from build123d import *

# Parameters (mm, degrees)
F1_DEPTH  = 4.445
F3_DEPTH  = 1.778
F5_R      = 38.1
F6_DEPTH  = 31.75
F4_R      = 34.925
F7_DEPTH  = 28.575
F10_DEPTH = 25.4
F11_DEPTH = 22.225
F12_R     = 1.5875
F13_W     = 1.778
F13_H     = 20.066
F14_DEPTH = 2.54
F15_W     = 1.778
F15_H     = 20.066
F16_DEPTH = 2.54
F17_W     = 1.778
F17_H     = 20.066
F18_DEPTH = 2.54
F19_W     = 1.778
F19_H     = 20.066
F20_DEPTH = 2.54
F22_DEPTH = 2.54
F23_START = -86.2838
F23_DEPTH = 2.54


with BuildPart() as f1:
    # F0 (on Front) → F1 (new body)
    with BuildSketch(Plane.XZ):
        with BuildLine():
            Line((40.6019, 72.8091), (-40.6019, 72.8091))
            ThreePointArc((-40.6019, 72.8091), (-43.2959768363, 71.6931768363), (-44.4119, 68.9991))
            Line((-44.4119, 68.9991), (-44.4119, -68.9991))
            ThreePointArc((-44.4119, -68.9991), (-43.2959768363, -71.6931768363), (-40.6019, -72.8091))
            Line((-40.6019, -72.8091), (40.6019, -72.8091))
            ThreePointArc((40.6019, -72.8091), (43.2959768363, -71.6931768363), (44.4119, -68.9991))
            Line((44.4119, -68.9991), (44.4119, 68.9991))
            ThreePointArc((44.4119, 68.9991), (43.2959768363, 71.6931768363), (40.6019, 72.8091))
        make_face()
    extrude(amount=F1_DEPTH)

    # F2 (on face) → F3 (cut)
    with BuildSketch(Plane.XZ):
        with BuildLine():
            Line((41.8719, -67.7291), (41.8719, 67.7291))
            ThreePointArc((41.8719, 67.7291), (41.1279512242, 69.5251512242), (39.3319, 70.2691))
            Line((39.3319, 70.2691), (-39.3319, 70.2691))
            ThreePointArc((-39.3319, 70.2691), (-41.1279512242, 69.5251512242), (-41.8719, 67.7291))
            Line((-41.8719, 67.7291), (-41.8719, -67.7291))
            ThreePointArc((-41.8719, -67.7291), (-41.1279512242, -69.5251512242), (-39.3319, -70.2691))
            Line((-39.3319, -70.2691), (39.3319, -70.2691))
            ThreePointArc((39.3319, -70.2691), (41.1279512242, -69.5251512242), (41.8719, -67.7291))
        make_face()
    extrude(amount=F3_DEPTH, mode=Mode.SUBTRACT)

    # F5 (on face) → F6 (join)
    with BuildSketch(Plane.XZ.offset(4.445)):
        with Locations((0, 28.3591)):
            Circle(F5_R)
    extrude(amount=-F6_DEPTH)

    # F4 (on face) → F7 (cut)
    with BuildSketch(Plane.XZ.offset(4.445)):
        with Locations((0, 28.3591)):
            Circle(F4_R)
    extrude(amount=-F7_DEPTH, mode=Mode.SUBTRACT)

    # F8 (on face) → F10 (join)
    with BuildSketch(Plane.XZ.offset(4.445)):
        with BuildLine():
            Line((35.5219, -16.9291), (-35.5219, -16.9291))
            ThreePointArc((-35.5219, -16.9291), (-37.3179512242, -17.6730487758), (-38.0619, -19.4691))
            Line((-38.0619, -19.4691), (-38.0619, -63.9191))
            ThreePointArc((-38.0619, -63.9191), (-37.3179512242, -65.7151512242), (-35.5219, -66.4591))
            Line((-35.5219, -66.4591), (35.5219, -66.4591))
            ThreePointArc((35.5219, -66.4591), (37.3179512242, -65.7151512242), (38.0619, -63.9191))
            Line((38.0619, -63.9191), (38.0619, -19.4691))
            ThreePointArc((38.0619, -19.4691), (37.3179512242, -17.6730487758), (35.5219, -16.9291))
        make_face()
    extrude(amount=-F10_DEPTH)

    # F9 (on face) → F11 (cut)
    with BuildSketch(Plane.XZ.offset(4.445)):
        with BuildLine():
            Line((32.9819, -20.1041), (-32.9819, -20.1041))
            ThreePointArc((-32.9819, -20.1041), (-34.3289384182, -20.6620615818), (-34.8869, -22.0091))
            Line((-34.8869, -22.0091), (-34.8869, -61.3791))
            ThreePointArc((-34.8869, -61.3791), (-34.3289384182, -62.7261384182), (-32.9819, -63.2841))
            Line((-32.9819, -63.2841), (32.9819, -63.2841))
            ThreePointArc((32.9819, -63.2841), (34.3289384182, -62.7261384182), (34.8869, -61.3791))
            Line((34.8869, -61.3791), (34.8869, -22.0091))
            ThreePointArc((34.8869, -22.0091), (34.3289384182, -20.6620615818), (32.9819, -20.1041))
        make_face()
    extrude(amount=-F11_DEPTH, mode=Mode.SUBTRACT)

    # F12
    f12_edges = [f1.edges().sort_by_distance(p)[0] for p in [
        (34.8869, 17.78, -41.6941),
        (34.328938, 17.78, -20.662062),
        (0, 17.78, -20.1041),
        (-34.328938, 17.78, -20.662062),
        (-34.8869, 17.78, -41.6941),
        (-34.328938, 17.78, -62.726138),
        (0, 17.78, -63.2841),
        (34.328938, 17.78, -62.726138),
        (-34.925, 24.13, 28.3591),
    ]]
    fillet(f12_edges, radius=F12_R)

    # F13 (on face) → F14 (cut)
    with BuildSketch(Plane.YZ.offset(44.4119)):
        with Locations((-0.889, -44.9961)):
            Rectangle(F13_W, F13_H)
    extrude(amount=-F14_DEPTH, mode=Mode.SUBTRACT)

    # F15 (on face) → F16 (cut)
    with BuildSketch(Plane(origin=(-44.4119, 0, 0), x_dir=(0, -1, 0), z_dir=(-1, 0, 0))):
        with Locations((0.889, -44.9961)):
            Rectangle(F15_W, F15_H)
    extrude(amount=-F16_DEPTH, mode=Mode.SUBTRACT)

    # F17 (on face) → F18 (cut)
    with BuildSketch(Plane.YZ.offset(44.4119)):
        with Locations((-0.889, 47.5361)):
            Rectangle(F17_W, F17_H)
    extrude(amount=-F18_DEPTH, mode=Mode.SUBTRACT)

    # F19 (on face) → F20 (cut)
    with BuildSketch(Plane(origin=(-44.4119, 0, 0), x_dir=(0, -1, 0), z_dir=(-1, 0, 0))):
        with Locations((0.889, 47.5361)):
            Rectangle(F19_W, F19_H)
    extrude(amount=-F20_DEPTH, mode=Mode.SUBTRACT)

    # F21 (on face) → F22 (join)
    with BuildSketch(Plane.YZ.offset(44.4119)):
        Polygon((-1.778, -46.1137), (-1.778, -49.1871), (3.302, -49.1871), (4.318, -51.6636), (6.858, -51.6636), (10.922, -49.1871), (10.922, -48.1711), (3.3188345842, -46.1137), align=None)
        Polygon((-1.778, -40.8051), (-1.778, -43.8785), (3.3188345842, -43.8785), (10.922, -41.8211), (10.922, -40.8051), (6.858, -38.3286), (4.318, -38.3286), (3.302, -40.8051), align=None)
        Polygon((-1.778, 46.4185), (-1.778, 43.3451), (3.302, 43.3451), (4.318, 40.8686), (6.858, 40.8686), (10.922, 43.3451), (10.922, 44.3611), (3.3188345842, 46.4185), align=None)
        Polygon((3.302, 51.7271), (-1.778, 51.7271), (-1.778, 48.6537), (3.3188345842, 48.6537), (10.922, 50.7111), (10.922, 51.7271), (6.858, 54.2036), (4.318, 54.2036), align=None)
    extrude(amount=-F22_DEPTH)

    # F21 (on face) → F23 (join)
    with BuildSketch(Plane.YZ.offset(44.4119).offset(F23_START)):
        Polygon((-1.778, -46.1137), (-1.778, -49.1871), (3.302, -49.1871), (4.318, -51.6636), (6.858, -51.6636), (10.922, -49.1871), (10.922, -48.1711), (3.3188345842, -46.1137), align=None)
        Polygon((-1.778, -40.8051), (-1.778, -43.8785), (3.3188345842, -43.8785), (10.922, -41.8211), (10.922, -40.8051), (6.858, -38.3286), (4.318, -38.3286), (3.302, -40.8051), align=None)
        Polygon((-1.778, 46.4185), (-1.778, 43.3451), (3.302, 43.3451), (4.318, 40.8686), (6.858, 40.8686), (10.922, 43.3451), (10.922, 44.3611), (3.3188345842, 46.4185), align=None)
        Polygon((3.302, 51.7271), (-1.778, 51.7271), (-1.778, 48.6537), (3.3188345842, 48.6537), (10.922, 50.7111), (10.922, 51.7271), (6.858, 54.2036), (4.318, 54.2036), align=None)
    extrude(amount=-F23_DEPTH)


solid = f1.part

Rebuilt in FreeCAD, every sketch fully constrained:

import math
import FreeCAD as App
import Part
import Sketcher
Q = App.Units.Quantity


def edges_at(feature, points):
    """Names of the edges that pass closest to the given points."""
    edges = feature.Shape.Edges
    near = lambda p: min(range(len(edges)), key=lambda i: edges[i].distToShape(Part.Vertex(*p))[0])
    return sorted({f"Edge{near(p) + 1}" for p in points})

doc = App.newDocument("Part")
body = doc.addObject("PartDesign::Body", "Body")

# Sketch on XZ plane
sketch1 = body.newObject("Sketcher::SketchObject", "Sketch")
sketch1.AttachmentSupport = (doc.getObject("XZ_Plane"), [""])
sketch1.MapMode = "FlatFace"
sketch1.addGeometry(Part.LineSegment(App.Vector(40.6, 72.8, 0), App.Vector(-40.6, 72.8, 0)), False)
sketch1.addGeometry(Part.ArcOfCircle(Part.Circle(App.Vector(-40.6, 69, 0), App.Vector(0, 0, 1), 3.8), math.radians(90), math.radians(180)), False)
sketch1.addGeometry(Part.LineSegment(App.Vector(-44.4, 69, 0), App.Vector(-44.4, -69, 0)), False)
sketch1.addGeometry(Part.ArcOfCircle(Part.Circle(App.Vector(-40.6, -69, 0), App.Vector(0, 0, 1), 3.8), math.radians(180), math.radians(270)), False)
sketch1.addGeometry(Part.LineSegment(App.Vector(-40.6, -72.8, 0), App.Vector(40.6, -72.8, 0)), False)
sketch1.addGeometry(Part.ArcOfCircle(Part.Circle(App.Vector(40.6, -69, 0), App.Vector(0, 0, 1), 3.8), math.radians(-90), math.radians(0)), False)
sketch1.addGeometry(Part.LineSegment(App.Vector(44.4, -69, 0), App.Vector(44.4, 69, 0)), False)
sketch1.addGeometry(Part.ArcOfCircle(Part.Circle(App.Vector(40.6, 69, 0), App.Vector(0, 0, 1), 3.8), math.radians(0), math.radians(90)), False)
sketch1.addConstraint(Sketcher.Constraint("Tangent", 0, 2, 1, 1))
sketch1.addConstraint(Sketcher.Constraint("Tangent", 1, 2, 2, 1))
sketch1.addConstraint(Sketcher.Constraint("Tangent", 2, 2, 3, 1))
sketch1.addConstraint(Sketcher.Constraint("Tangent", 3, 2, 4, 1))
sketch1.addConstraint(Sketcher.Constraint("Tangent", 4, 2, 5, 1))
sketch1.addConstraint(Sketcher.Constraint("Tangent", 5, 2, 6, 1))
sketch1.addConstraint(Sketcher.Constraint("Tangent", 6, 2, 7, 1))
sketch1.addConstraint(Sketcher.Constraint("Tangent", 7, 2, 0, 1))
sketch1.addConstraint(Sketcher.Constraint("Horizontal", 0))
sketch1.addConstraint(Sketcher.Constraint("Vertical", 2))
sketch1.addConstraint(Sketcher.Constraint("Horizontal", 4))
sketch1.addConstraint(Sketcher.Constraint("Vertical", 6))
sketch1.addConstraint(Sketcher.Constraint("Equal", 1, 3))
sketch1.addConstraint(Sketcher.Constraint("Equal", 3, 5))
sketch1.addConstraint(Sketcher.Constraint("Equal", 5, 7))
sketch1.addConstraint(Sketcher.Constraint("Symmetric", 1, 3, 5, 3, -1, 1))
sketch1.addConstraint(Sketcher.Constraint("Radius", 1, Q("0.15 in")))
sketch1.addConstraint(Sketcher.Constraint("DistanceX", 0, 2, 0, 1, Q("3.197 in")))
sketch1.addConstraint(Sketcher.Constraint("DistanceY", 2, 2, 2, 1, Q("5.433 in")))
pad1 = body.newObject("PartDesign::Pad", "Pad")
pad1.Profile = sketch1
pad1.Length = Q("0.175 in")

# Sketch on XZ plane
sketch2 = body.newObject("Sketcher::SketchObject", "Sketch001")
sketch2.AttachmentSupport = (doc.getObject("XZ_Plane"), [""])
sketch2.MapMode = "FlatFace"
sketch2.addGeometry(Part.LineSegment(App.Vector(41.9, -67.7, 0), App.Vector(41.9, 67.7, 0)), False)
sketch2.addGeometry(Part.ArcOfCircle(Part.Circle(App.Vector(39.3, 67.7, 0), App.Vector(0, 0, 1), 2.5), math.radians(0), math.radians(90)), False)
sketch2.addGeometry(Part.LineSegment(App.Vector(39.3, 70.3, 0), App.Vector(-39.3, 70.3, 0)), False)
sketch2.addGeometry(Part.ArcOfCircle(Part.Circle(App.Vector(-39.3, 67.7, 0), App.Vector(0, 0, 1), 2.5), math.radians(90), math.radians(180)), False)
sketch2.addGeometry(Part.LineSegment(App.Vector(-41.9, 67.7, 0), App.Vector(-41.9, -67.7, 0)), False)
sketch2.addGeometry(Part.ArcOfCircle(Part.Circle(App.Vector(-39.3, -67.7, 0), App.Vector(0, 0, 1), 2.5), math.radians(180), math.radians(270)), False)
sketch2.addGeometry(Part.LineSegment(App.Vector(-39.3, -70.3, 0), App.Vector(39.3, -70.3, 0)), False)
sketch2.addGeometry(Part.ArcOfCircle(Part.Circle(App.Vector(39.3, -67.7, 0), App.Vector(0, 0, 1), 2.5), math.radians(-90), math.radians(0)), False)
sketch2.addConstraint(Sketcher.Constraint("Tangent", 0, 2, 1, 1))
sketch2.addConstraint(Sketcher.Constraint("Tangent", 1, 2, 2, 1))
sketch2.addConstraint(Sketcher.Constraint("Tangent", 2, 2, 3, 1))
sketch2.addConstraint(Sketcher.Constraint("Tangent", 3, 2, 4, 1))
sketch2.addConstraint(Sketcher.Constraint("Tangent", 4, 2, 5, 1))
sketch2.addConstraint(Sketcher.Constraint("Tangent", 5, 2, 6, 1))
sketch2.addConstraint(Sketcher.Constraint("Tangent", 6, 2, 7, 1))
sketch2.addConstraint(Sketcher.Constraint("Tangent", 7, 2, 0, 1))
sketch2.addConstraint(Sketcher.Constraint("Vertical", 0))
sketch2.addConstraint(Sketcher.Constraint("Horizontal", 2))
sketch2.addConstraint(Sketcher.Constraint("Vertical", 4))
sketch2.addConstraint(Sketcher.Constraint("Horizontal", 6))
sketch2.addConstraint(Sketcher.Constraint("Equal", 1, 3))
sketch2.addConstraint(Sketcher.Constraint("Equal", 3, 5))
sketch2.addConstraint(Sketcher.Constraint("Equal", 5, 7))
sketch2.addConstraint(Sketcher.Constraint("Symmetric", 1, 3, 5, 3, -1, 1))
sketch2.addConstraint(Sketcher.Constraint("Radius", 1, Q("0.1 in")))
sketch2.addConstraint(Sketcher.Constraint("DistanceX", 2, 2, 2, 1, Q("3.097 in")))
sketch2.addConstraint(Sketcher.Constraint("DistanceY", 0, 1, 0, 2, Q("5.333 in")))
pocket1 = body.newObject("PartDesign::Pocket", "Pocket")
pocket1.Profile = sketch2
pocket1.Length = Q("0.07 in")
pocket1.Reversed = True

# Sketch on XZ plane
sketch3 = body.newObject("Sketcher::SketchObject", "Sketch002")
sketch3.AttachmentSupport = (doc.getObject("XZ_Plane"), [""])
sketch3.MapMode = "FlatFace"
sketch3.AttachmentOffset = App.Placement(App.Vector(0, 0, 0.175 * 25.4), App.Rotation())
sketch3.addGeometry(Part.Circle(App.Vector(0, 28, 0), App.Vector(0, 0, 1), 38), False)
sketch3.addConstraint(Sketcher.Constraint("PointOnObject", 0, 3, -2))
sketch3.addConstraint(Sketcher.Constraint("Diameter", 0, Q("3 in")))
sketch3.addConstraint(Sketcher.Constraint("DistanceY", -1, 1, 0, 3, Q("1.1165 in")))
pad2 = body.newObject("PartDesign::Pad", "Pad001")
pad2.Profile = sketch3
pad2.Length = Q("1.25 in")
pad2.Reversed = True

# Sketch on XZ plane
sketch4 = body.newObject("Sketcher::SketchObject", "Sketch003")
sketch4.AttachmentSupport = (doc.getObject("XZ_Plane"), [""])
sketch4.MapMode = "FlatFace"
sketch4.AttachmentOffset = App.Placement(App.Vector(0, 0, 0.175 * 25.4), App.Rotation())
sketch4.addGeometry(Part.Circle(App.Vector(0, 28, 0), App.Vector(0, 0, 1), 35), False)
sketch4.addConstraint(Sketcher.Constraint("PointOnObject", 0, 3, -2))
sketch4.addConstraint(Sketcher.Constraint("Diameter", 0, Q("2.75 in")))
sketch4.addConstraint(Sketcher.Constraint("DistanceY", -1, 1, 0, 3, Q("1.1165 in")))
pocket2 = body.newObject("PartDesign::Pocket", "Pocket001")
pocket2.Profile = sketch4
pocket2.Length = Q("1.125 in")

# Sketch on XZ plane
sketch5 = body.newObject("Sketcher::SketchObject", "Sketch004")
sketch5.AttachmentSupport = (doc.getObject("XZ_Plane"), [""])
sketch5.MapMode = "FlatFace"
sketch5.AttachmentOffset = App.Placement(App.Vector(0, 0, 0.175 * 25.4), App.Rotation())
sketch5.addGeometry(Part.LineSegment(App.Vector(35.5, -16.9, 0), App.Vector(-35.5, -16.9, 0)), False)
sketch5.addGeometry(Part.ArcOfCircle(Part.Circle(App.Vector(-35.5, -19.5, 0), App.Vector(0, 0, 1), 2.5), math.radians(90), math.radians(180)), False)
sketch5.addGeometry(Part.LineSegment(App.Vector(-38.1, -19.5, 0), App.Vector(-38.1, -63.9, 0)), False)
sketch5.addGeometry(Part.ArcOfCircle(Part.Circle(App.Vector(-35.5, -63.9, 0), App.Vector(0, 0, 1), 2.5), math.radians(180), math.radians(270)), False)
sketch5.addGeometry(Part.LineSegment(App.Vector(-35.5, -66.5, 0), App.Vector(35.5, -66.5, 0)), False)
sketch5.addGeometry(Part.ArcOfCircle(Part.Circle(App.Vector(35.5, -63.9, 0), App.Vector(0, 0, 1), 2.5), math.radians(-90), math.radians(0)), False)
sketch5.addGeometry(Part.LineSegment(App.Vector(38.1, -63.9, 0), App.Vector(38.1, -19.5, 0)), False)
sketch5.addGeometry(Part.ArcOfCircle(Part.Circle(App.Vector(35.5, -19.5, 0), App.Vector(0, 0, 1), 2.5), math.radians(0), math.radians(90)), False)
sketch5.addConstraint(Sketcher.Constraint("Tangent", 0, 2, 1, 1))
sketch5.addConstraint(Sketcher.Constraint("Tangent", 1, 2, 2, 1))
sketch5.addConstraint(Sketcher.Constraint("Tangent", 2, 2, 3, 1))
sketch5.addConstraint(Sketcher.Constraint("Tangent", 3, 2, 4, 1))
sketch5.addConstraint(Sketcher.Constraint("Tangent", 4, 2, 5, 1))
sketch5.addConstraint(Sketcher.Constraint("Tangent", 5, 2, 6, 1))
sketch5.addConstraint(Sketcher.Constraint("Tangent", 6, 2, 7, 1))
sketch5.addConstraint(Sketcher.Constraint("Tangent", 7, 2, 0, 1))
sketch5.addConstraint(Sketcher.Constraint("Horizontal", 0))
sketch5.addConstraint(Sketcher.Constraint("Vertical", 2))
sketch5.addConstraint(Sketcher.Constraint("Horizontal", 4))
sketch5.addConstraint(Sketcher.Constraint("Vertical", 6))
sketch5.addConstraint(Sketcher.Constraint("Equal", 1, 3))
sketch5.addConstraint(Sketcher.Constraint("Equal", 3, 5))
sketch5.addConstraint(Sketcher.Constraint("Equal", 5, 7))
sketch5.addConstraint(Sketcher.Constraint("Radius", 1, Q("0.1 in")))
sketch5.addConstraint(Sketcher.Constraint("DistanceY", 2, 2, 2, 1, Q("1.75 in")))
sketch5.addConstraint(Sketcher.Constraint("DistanceX", 0, 2, 0, 1, Q("2.797 in")))
sketch5.addConstraint(Sketcher.Constraint("DistanceX", 1, 3, -1, 1, Q("1.3985 in")))
sketch5.addConstraint(Sketcher.Constraint("DistanceY", 1, 3, -1, 1, Q("0.7665 in")))
pad3 = body.newObject("PartDesign::Pad", "Pad002")
pad3.Profile = sketch5
pad3.Length = Q("1 in")
pad3.Reversed = True

# Sketch on XZ plane
sketch6 = body.newObject("Sketcher::SketchObject", "Sketch005")
sketch6.AttachmentSupport = (doc.getObject("XZ_Plane"), [""])
sketch6.MapMode = "FlatFace"
sketch6.AttachmentOffset = App.Placement(App.Vector(0, 0, 0.175 * 25.4), App.Rotation())
sketch6.addGeometry(Part.LineSegment(App.Vector(33, -20.1, 0), App.Vector(-33, -20.1, 0)), False)
sketch6.addGeometry(Part.ArcOfCircle(Part.Circle(App.Vector(-33, -22, 0), App.Vector(0, 0, 1), 1.9), math.radians(90), math.radians(180)), False)
sketch6.addGeometry(Part.LineSegment(App.Vector(-34.9, -22, 0), App.Vector(-34.9, -61.4, 0)), False)
sketch6.addGeometry(Part.ArcOfCircle(Part.Circle(App.Vector(-33, -61.4, 0), App.Vector(0, 0, 1), 1.9), math.radians(180), math.radians(270)), False)
sketch6.addGeometry(Part.LineSegment(App.Vector(-33, -63.3, 0), App.Vector(33, -63.3, 0)), False)
sketch6.addGeometry(Part.ArcOfCircle(Part.Circle(App.Vector(33, -61.4, 0), App.Vector(0, 0, 1), 1.9), math.radians(-90), math.radians(0)), False)
sketch6.addGeometry(Part.LineSegment(App.Vector(34.9, -61.4, 0), App.Vector(34.9, -22, 0)), False)
sketch6.addGeometry(Part.ArcOfCircle(Part.Circle(App.Vector(33, -22, 0), App.Vector(0, 0, 1), 1.9), math.radians(0), math.radians(90)), False)
sketch6.addConstraint(Sketcher.Constraint("Tangent", 0, 2, 1, 1))
sketch6.addConstraint(Sketcher.Constraint("Tangent", 1, 2, 2, 1))
sketch6.addConstraint(Sketcher.Constraint("Tangent", 2, 2, 3, 1))
sketch6.addConstraint(Sketcher.Constraint("Tangent", 3, 2, 4, 1))
sketch6.addConstraint(Sketcher.Constraint("Tangent", 4, 2, 5, 1))
sketch6.addConstraint(Sketcher.Constraint("Tangent", 5, 2, 6, 1))
sketch6.addConstraint(Sketcher.Constraint("Tangent", 6, 2, 7, 1))
sketch6.addConstraint(Sketcher.Constraint("Tangent", 7, 2, 0, 1))
sketch6.addConstraint(Sketcher.Constraint("Horizontal", 0))
sketch6.addConstraint(Sketcher.Constraint("Vertical", 2))
sketch6.addConstraint(Sketcher.Constraint("Horizontal", 4))
sketch6.addConstraint(Sketcher.Constraint("Vertical", 6))
sketch6.addConstraint(Sketcher.Constraint("Equal", 1, 3))
sketch6.addConstraint(Sketcher.Constraint("Equal", 3, 5))
sketch6.addConstraint(Sketcher.Constraint("Equal", 5, 7))
sketch6.addConstraint(Sketcher.Constraint("Radius", 1, Q("0.075 in")))
sketch6.addConstraint(Sketcher.Constraint("DistanceY", 2, 2, 2, 1, Q("1.55 in")))
sketch6.addConstraint(Sketcher.Constraint("DistanceX", 0, 2, 0, 1, Q("2.597 in")))
sketch6.addConstraint(Sketcher.Constraint("DistanceX", 1, 3, -1, 1, Q("1.2985 in")))
sketch6.addConstraint(Sketcher.Constraint("DistanceY", 1, 3, -1, 1, Q("0.8665 in")))
pocket3 = body.newObject("PartDesign::Pocket", "Pocket002")
pocket3.Profile = sketch6
pocket3.Length = Q("0.875 in")
doc.recompute()

fillet = body.newObject("PartDesign::Fillet", "Fillet")
fillet.Base = (pocket3, edges_at(pocket3, [
    (34.887, 17.78, -41.694),
    (34.329, 17.78, -20.662),
    (0, 17.78, -20.104),
    (-34.329, 17.78, -20.662),
    (-34.887, 17.78, -41.694),
    (-34.329, 17.78, -62.726),
    (0, 17.78, -63.284),
    (34.329, 17.78, -62.726),
    (-34.925, 24.13, 28.359),
]))
fillet.Radius = Q("0.0625 in")

# Sketch on YZ plane
sketch7 = body.newObject("Sketcher::SketchObject", "Sketch006")
sketch7.AttachmentSupport = (doc.getObject("YZ_Plane"), [""])
sketch7.MapMode = "FlatFace"
sketch7.AttachmentOffset = App.Placement(App.Vector(0, 0, 1.7485 * 25.4), App.Rotation())
sketch7.addGeometry(Part.LineSegment(App.Vector(-1.8, -35, 0), App.Vector(-1.8, -55, 0)), False)
sketch7.addGeometry(Part.LineSegment(App.Vector(-1.8, -55, 0), App.Vector(0, -55, 0)), False)
sketch7.addGeometry(Part.LineSegment(App.Vector(0, -55, 0), App.Vector(0, -35, 0)), False)
sketch7.addGeometry(Part.LineSegment(App.Vector(0, -35, 0), App.Vector(-1.8, -35, 0)), False)
sketch7.addConstraint(Sketcher.Constraint("Coincident", 0, 2, 1, 1))
sketch7.addConstraint(Sketcher.Constraint("Coincident", 1, 2, 2, 1))
sketch7.addConstraint(Sketcher.Constraint("Coincident", 2, 2, 3, 1))
sketch7.addConstraint(Sketcher.Constraint("Coincident", 3, 2, 0, 1))
sketch7.addConstraint(Sketcher.Constraint("Vertical", 0))
sketch7.addConstraint(Sketcher.Constraint("Horizontal", 1))
sketch7.addConstraint(Sketcher.Constraint("Vertical", 2))
sketch7.addConstraint(Sketcher.Constraint("Horizontal", 3))
sketch7.addConstraint(Sketcher.Constraint("PointOnObject", 1, 2, -2))
sketch7.addConstraint(Sketcher.Constraint("DistanceX", 1, 1, 1, 2, Q("0.07 in")))
sketch7.addConstraint(Sketcher.Constraint("DistanceY", 0, 2, 0, 1, Q("0.79 in")))
sketch7.addConstraint(Sketcher.Constraint("DistanceY", 0, 2, -1, 1, Q("2.1665 in")))
pocket4 = body.newObject("PartDesign::Pocket", "Pocket003")
pocket4.Profile = sketch7
pocket4.Length = Q("0.1 in")

# Sketch on YZ plane
sketch8 = body.newObject("Sketcher::SketchObject", "Sketch007")
sketch8.AttachmentSupport = (doc.getObject("YZ_Plane"), [""])
sketch8.MapMode = "FlatFace"
sketch8.AttachmentOffset = App.Placement(App.Vector(0, 0, -1.7485 * 25.4), App.Rotation())
sketch8.addGeometry(Part.LineSegment(App.Vector(0, -35, 0), App.Vector(0, -55, 0)), False)
sketch8.addGeometry(Part.LineSegment(App.Vector(0, -55, 0), App.Vector(-1.8, -55, 0)), False)
sketch8.addGeometry(Part.LineSegment(App.Vector(-1.8, -55, 0), App.Vector(-1.8, -35, 0)), False)
sketch8.addGeometry(Part.LineSegment(App.Vector(-1.8, -35, 0), App.Vector(0, -35, 0)), False)
sketch8.addConstraint(Sketcher.Constraint("Coincident", 0, 2, 1, 1))
sketch8.addConstraint(Sketcher.Constraint("Coincident", 1, 2, 2, 1))
sketch8.addConstraint(Sketcher.Constraint("Coincident", 2, 2, 3, 1))
sketch8.addConstraint(Sketcher.Constraint("Coincident", 3, 2, 0, 1))
sketch8.addConstraint(Sketcher.Constraint("Vertical", 0))
sketch8.addConstraint(Sketcher.Constraint("Horizontal", 1))
sketch8.addConstraint(Sketcher.Constraint("Vertical", 2))
sketch8.addConstraint(Sketcher.Constraint("Horizontal", 3))
sketch8.addConstraint(Sketcher.Constraint("PointOnObject", 0, 2, -2))
sketch8.addConstraint(Sketcher.Constraint("DistanceX", 1, 2, 1, 1, Q("0.07 in")))
sketch8.addConstraint(Sketcher.Constraint("DistanceY", 0, 2, 0, 1, Q("0.79 in")))
sketch8.addConstraint(Sketcher.Constraint("DistanceY", 0, 2, -1, 1, Q("2.1665 in")))
pocket5 = body.newObject("PartDesign::Pocket", "Pocket004")
pocket5.Profile = sketch8
pocket5.Length = Q("0.1 in")
pocket5.Reversed = True

# Sketch on YZ plane
sketch9 = body.newObject("Sketcher::SketchObject", "Sketch008")
sketch9.AttachmentSupport = (doc.getObject("YZ_Plane"), [""])
sketch9.MapMode = "FlatFace"
sketch9.AttachmentOffset = App.Placement(App.Vector(0, 0, 1.7485 * 25.4), App.Rotation())
sketch9.addGeometry(Part.LineSegment(App.Vector(-1.8, 57.6, 0), App.Vector(-1.8, 37.5, 0)), False)
sketch9.addGeometry(Part.LineSegment(App.Vector(-1.8, 37.5, 0), App.Vector(0, 37.5, 0)), False)
sketch9.addGeometry(Part.LineSegment(App.Vector(0, 37.5, 0), App.Vector(0, 57.6, 0)), False)
sketch9.addGeometry(Part.LineSegment(App.Vector(0, 57.6, 0), App.Vector(-1.8, 57.6, 0)), False)
sketch9.addConstraint(Sketcher.Constraint("Coincident", 0, 2, 1, 1))
sketch9.addConstraint(Sketcher.Constraint("Coincident", 1, 2, 2, 1))
sketch9.addConstraint(Sketcher.Constraint("Coincident", 2, 2, 3, 1))
sketch9.addConstraint(Sketcher.Constraint("Coincident", 3, 2, 0, 1))
sketch9.addConstraint(Sketcher.Constraint("Vertical", 0))
sketch9.addConstraint(Sketcher.Constraint("Horizontal", 1))
sketch9.addConstraint(Sketcher.Constraint("Vertical", 2))
sketch9.addConstraint(Sketcher.Constraint("Horizontal", 3))
sketch9.addConstraint(Sketcher.Constraint("PointOnObject", 1, 2, -2))
sketch9.addConstraint(Sketcher.Constraint("DistanceX", 1, 1, 1, 2, Q("0.07 in")))
sketch9.addConstraint(Sketcher.Constraint("DistanceY", 0, 2, 0, 1, Q("0.79 in")))
sketch9.addConstraint(Sketcher.Constraint("DistanceY", -1, 1, 0, 2, Q("1.4765 in")))
pocket6 = body.newObject("PartDesign::Pocket", "Pocket005")
pocket6.Profile = sketch9
pocket6.Length = Q("0.1 in")

# Sketch on YZ plane
sketch10 = body.newObject("Sketcher::SketchObject", "Sketch009")
sketch10.AttachmentSupport = (doc.getObject("YZ_Plane"), [""])
sketch10.MapMode = "FlatFace"
sketch10.AttachmentOffset = App.Placement(App.Vector(0, 0, -1.7485 * 25.4), App.Rotation())
sketch10.addGeometry(Part.LineSegment(App.Vector(0, 57.6, 0), App.Vector(0, 37.5, 0)), False)
sketch10.addGeometry(Part.LineSegment(App.Vector(0, 37.5, 0), App.Vector(-1.8, 37.5, 0)), False)
sketch10.addGeometry(Part.LineSegment(App.Vector(-1.8, 37.5, 0), App.Vector(-1.8, 57.6, 0)), False)
sketch10.addGeometry(Part.LineSegment(App.Vector(-1.8, 57.6, 0), App.Vector(0, 57.6, 0)), False)
sketch10.addConstraint(Sketcher.Constraint("Coincident", 0, 2, 1, 1))
sketch10.addConstraint(Sketcher.Constraint("Coincident", 1, 2, 2, 1))
sketch10.addConstraint(Sketcher.Constraint("Coincident", 2, 2, 3, 1))
sketch10.addConstraint(Sketcher.Constraint("Coincident", 3, 2, 0, 1))
sketch10.addConstraint(Sketcher.Constraint("Vertical", 0))
sketch10.addConstraint(Sketcher.Constraint("Horizontal", 1))
sketch10.addConstraint(Sketcher.Constraint("Vertical", 2))
sketch10.addConstraint(Sketcher.Constraint("Horizontal", 3))
sketch10.addConstraint(Sketcher.Constraint("PointOnObject", 0, 2, -2))
sketch10.addConstraint(Sketcher.Constraint("DistanceX", 1, 2, 1, 1, Q("0.07 in")))
sketch10.addConstraint(Sketcher.Constraint("DistanceY", 0, 2, 0, 1, Q("0.79 in")))
sketch10.addConstraint(Sketcher.Constraint("DistanceY", -1, 1, 0, 2, Q("1.4765 in")))
pocket7 = body.newObject("PartDesign::Pocket", "Pocket006")
pocket7.Profile = sketch10
pocket7.Length = Q("0.1 in")
pocket7.Reversed = True

# Sketch on YZ plane
sketch11 = body.newObject("Sketcher::SketchObject", "Sketch010")
sketch11.AttachmentSupport = (doc.getObject("YZ_Plane"), [""])
sketch11.MapMode = "FlatFace"
sketch11.AttachmentOffset = App.Placement(App.Vector(0, 0, 1.7485 * 25.4), App.Rotation())
sketch11.addGeometry(Part.LineSegment(App.Vector(-1.8, -46.1, 0), App.Vector(-1.8, -49.2, 0)), False)
sketch11.addGeometry(Part.LineSegment(App.Vector(-1.8, -49.2, 0), App.Vector(3.3, -49.2, 0)), False)
sketch11.addGeometry(Part.LineSegment(App.Vector(3.3, -49.2, 0), App.Vector(4.3, -51.7, 0)), False)
sketch11.addGeometry(Part.LineSegment(App.Vector(4.3, -51.7, 0), App.Vector(6.9, -51.7, 0)), False)
sketch11.addGeometry(Part.LineSegment(App.Vector(6.9, -51.7, 0), App.Vector(10.9, -49.2, 0)), False)
sketch11.addGeometry(Part.LineSegment(App.Vector(10.9, -49.2, 0), App.Vector(10.9, -48.2, 0)), False)
sketch11.addGeometry(Part.LineSegment(App.Vector(10.9, -48.2, 0), App.Vector(3.3, -46.1, 0)), False)
sketch11.addGeometry(Part.LineSegment(App.Vector(3.3, -46.1, 0), App.Vector(-1.8, -46.1, 0)), False)
sketch11.addGeometry(Part.LineSegment(App.Vector(-1.8, -40.8, 0), App.Vector(-1.8, -43.9, 0)), False)
sketch11.addGeometry(Part.LineSegment(App.Vector(-1.8, -43.9, 0), App.Vector(3.3, -43.9, 0)), False)
sketch11.addGeometry(Part.LineSegment(App.Vector(3.3, -43.9, 0), App.Vector(10.9, -41.8, 0)), False)
sketch11.addGeometry(Part.LineSegment(App.Vector(10.9, -41.8, 0), App.Vector(10.9, -40.8, 0)), False)
sketch11.addGeometry(Part.LineSegment(App.Vector(10.9, -40.8, 0), App.Vector(6.9, -38.3, 0)), False)
sketch11.addGeometry(Part.LineSegment(App.Vector(6.9, -38.3, 0), App.Vector(4.3, -38.3, 0)), False)
sketch11.addGeometry(Part.LineSegment(App.Vector(4.3, -38.3, 0), App.Vector(3.3, -40.8, 0)), False)
sketch11.addGeometry(Part.LineSegment(App.Vector(3.3, -40.8, 0), App.Vector(-1.8, -40.8, 0)), False)
sketch11.addGeometry(Part.LineSegment(App.Vector(-1.8, 46.4, 0), App.Vector(-1.8, 43.3, 0)), False)
sketch11.addGeometry(Part.LineSegment(App.Vector(-1.8, 43.3, 0), App.Vector(3.3, 43.3, 0)), False)
sketch11.addGeometry(Part.LineSegment(App.Vector(3.3, 43.3, 0), App.Vector(4.3, 40.9, 0)), False)
sketch11.addGeometry(Part.LineSegment(App.Vector(4.3, 40.9, 0), App.Vector(6.9, 40.9, 0)), False)
sketch11.addGeometry(Part.LineSegment(App.Vector(6.9, 40.9, 0), App.Vector(10.9, 43.3, 0)), False)
sketch11.addGeometry(Part.LineSegment(App.Vector(10.9, 43.3, 0), App.Vector(10.9, 44.4, 0)), False)
sketch11.addGeometry(Part.LineSegment(App.Vector(10.9, 44.4, 0), App.Vector(3.3, 46.4, 0)), False)
sketch11.addGeometry(Part.LineSegment(App.Vector(3.3, 46.4, 0), App.Vector(-1.8, 46.4, 0)), False)
sketch11.addGeometry(Part.LineSegment(App.Vector(3.3, 51.7, 0), App.Vector(-1.8, 51.7, 0)), False)
sketch11.addGeometry(Part.LineSegment(App.Vector(-1.8, 51.7, 0), App.Vector(-1.8, 48.7, 0)), False)
sketch11.addGeometry(Part.LineSegment(App.Vector(-1.8, 48.7, 0), App.Vector(3.3, 48.7, 0)), False)
sketch11.addGeometry(Part.LineSegment(App.Vector(3.3, 48.7, 0), App.Vector(10.9, 50.7, 0)), False)
sketch11.addGeometry(Part.LineSegment(App.Vector(10.9, 50.7, 0), App.Vector(10.9, 51.7, 0)), False)
sketch11.addGeometry(Part.LineSegment(App.Vector(10.9, 51.7, 0), App.Vector(6.9, 54.2, 0)), False)
sketch11.addGeometry(Part.LineSegment(App.Vector(6.9, 54.2, 0), App.Vector(4.3, 54.2, 0)), False)
sketch11.addGeometry(Part.LineSegment(App.Vector(4.3, 54.2, 0), App.Vector(3.3, 51.7, 0)), False)
sketch11.addConstraint(Sketcher.Constraint("Coincident", 0, 2, 1, 1))
sketch11.addConstraint(Sketcher.Constraint("Coincident", 1, 2, 2, 1))
sketch11.addConstraint(Sketcher.Constraint("Coincident", 2, 2, 3, 1))
sketch11.addConstraint(Sketcher.Constraint("Coincident", 3, 2, 4, 1))
sketch11.addConstraint(Sketcher.Constraint("Coincident", 4, 2, 5, 1))
sketch11.addConstraint(Sketcher.Constraint("Coincident", 5, 2, 6, 1))
sketch11.addConstraint(Sketcher.Constraint("Coincident", 6, 2, 7, 1))
sketch11.addConstraint(Sketcher.Constraint("Coincident", 7, 2, 0, 1))
sketch11.addConstraint(Sketcher.Constraint("Coincident", 8, 2, 9, 1))
sketch11.addConstraint(Sketcher.Constraint("Coincident", 9, 2, 10, 1))
sketch11.addConstraint(Sketcher.Constraint("Coincident", 10, 2, 11, 1))
sketch11.addConstraint(Sketcher.Constraint("Coincident", 11, 2, 12, 1))
sketch11.addConstraint(Sketcher.Constraint("Coincident", 12, 2, 13, 1))
sketch11.addConstraint(Sketcher.Constraint("Coincident", 13, 2, 14, 1))
sketch11.addConstraint(Sketcher.Constraint("Coincident", 14, 2, 15, 1))
sketch11.addConstraint(Sketcher.Constraint("Coincident", 15, 2, 8, 1))
sketch11.addConstraint(Sketcher.Constraint("Coincident", 16, 2, 17, 1))
sketch11.addConstraint(Sketcher.Constraint("Coincident", 17, 2, 18, 1))
sketch11.addConstraint(Sketcher.Constraint("Coincident", 18, 2, 19, 1))
sketch11.addConstraint(Sketcher.Constraint("Coincident", 19, 2, 20, 1))
sketch11.addConstraint(Sketcher.Constraint("Coincident", 20, 2, 21, 1))
sketch11.addConstraint(Sketcher.Constraint("Coincident", 21, 2, 22, 1))
sketch11.addConstraint(Sketcher.Constraint("Coincident", 22, 2, 23, 1))
sketch11.addConstraint(Sketcher.Constraint("Coincident", 23, 2, 16, 1))
sketch11.addConstraint(Sketcher.Constraint("Coincident", 24, 2, 25, 1))
sketch11.addConstraint(Sketcher.Constraint("Coincident", 25, 2, 26, 1))
sketch11.addConstraint(Sketcher.Constraint("Coincident", 26, 2, 27, 1))
sketch11.addConstraint(Sketcher.Constraint("Coincident", 27, 2, 28, 1))
sketch11.addConstraint(Sketcher.Constraint("Coincident", 28, 2, 29, 1))
sketch11.addConstraint(Sketcher.Constraint("Coincident", 29, 2, 30, 1))
sketch11.addConstraint(Sketcher.Constraint("Coincident", 30, 2, 31, 1))
sketch11.addConstraint(Sketcher.Constraint("Coincident", 31, 2, 24, 1))
sketch11.addConstraint(Sketcher.Constraint("Vertical", 0))
sketch11.addConstraint(Sketcher.Constraint("Horizontal", 1))
sketch11.addConstraint(Sketcher.Constraint("Horizontal", 3))
sketch11.addConstraint(Sketcher.Constraint("Vertical", 5))
sketch11.addConstraint(Sketcher.Constraint("Horizontal", 7))
sketch11.addConstraint(Sketcher.Constraint("Vertical", 8))
sketch11.addConstraint(Sketcher.Constraint("Horizontal", 9))
sketch11.addConstraint(Sketcher.Constraint("Vertical", 11))
sketch11.addConstraint(Sketcher.Constraint("Horizontal", 13))
sketch11.addConstraint(Sketcher.Constraint("Horizontal", 15))
sketch11.addConstraint(Sketcher.Constraint("Vertical", 16))
sketch11.addConstraint(Sketcher.Constraint("Horizontal", 17))
sketch11.addConstraint(Sketcher.Constraint("Horizontal", 19))
sketch11.addConstraint(Sketcher.Constraint("Vertical", 21))
sketch11.addConstraint(Sketcher.Constraint("Horizontal", 23))
sketch11.addConstraint(Sketcher.Constraint("Horizontal", 24))
sketch11.addConstraint(Sketcher.Constraint("Vertical", 25))
sketch11.addConstraint(Sketcher.Constraint("Horizontal", 26))
sketch11.addConstraint(Sketcher.Constraint("Vertical", 28))
sketch11.addConstraint(Sketcher.Constraint("Horizontal", 30))
sketch11.addConstraint(Sketcher.Constraint("Parallel", 2, 18))
sketch11.addConstraint(Sketcher.Constraint("Parallel", 4, 20))
sketch11.addConstraint(Sketcher.Constraint("Parallel", 6, 22))
sketch11.addConstraint(Sketcher.Constraint("Parallel", 10, 27))
sketch11.addConstraint(Sketcher.Constraint("Parallel", 12, 29))
sketch11.addConstraint(Sketcher.Constraint("Parallel", 14, 31))
sketch11.addConstraint(Sketcher.Constraint("Horizontal", 1, 2, 4, 2))
sketch11.addConstraint(Sketcher.Constraint("Horizontal", 11, 2, 14, 2))
sketch11.addConstraint(Sketcher.Constraint("Horizontal", 17, 2, 20, 2))
sketch11.addConstraint(Sketcher.Constraint("Horizontal", 24, 2, 28, 2))
sketch11.addConstraint(Sketcher.Constraint("Vertical", 7, 2, 8, 2))
sketch11.addConstraint(Sketcher.Constraint("Vertical", 6, 2, 9, 2))
sketch11.addConstraint(Sketcher.Constraint("Vertical", 5, 2, 10, 2))
sketch11.addConstraint(Sketcher.Constraint("Vertical", 3, 2, 12, 2))
sketch11.addConstraint(Sketcher.Constraint("Vertical", 2, 2, 13, 2))
sketch11.addConstraint(Sketcher.Constraint("Vertical", 1, 2, 14, 2))
sketch11.addConstraint(Sketcher.Constraint("Vertical", 15, 2, 16, 2))
sketch11.addConstraint(Sketcher.Constraint("Vertical", 14, 2, 17, 2))
sketch11.addConstraint(Sketcher.Constraint("Vertical", 13, 2, 18, 2))
sketch11.addConstraint(Sketcher.Constraint("Vertical", 12, 2, 19, 2))
sketch11.addConstraint(Sketcher.Constraint("Vertical", 9, 2, 22, 2))
sketch11.addConstraint(Sketcher.Constraint("Vertical", 23, 2, 24, 2))
sketch11.addConstraint(Sketcher.Constraint("Vertical", 22, 2, 26, 2))
sketch11.addConstraint(Sketcher.Constraint("Vertical", 21, 2, 27, 2))
sketch11.addConstraint(Sketcher.Constraint("Vertical", 19, 2, 29, 2))
sketch11.addConstraint(Sketcher.Constraint("Vertical", 18, 2, 30, 2))
sketch11.addConstraint(Sketcher.Constraint("Equal", 0, 8))
sketch11.addConstraint(Sketcher.Constraint("Equal", 5, 11))
sketch11.addConstraint(Sketcher.Constraint("Equal", 8, 16))
sketch11.addConstraint(Sketcher.Constraint("Equal", 16, 25))
sketch11.addConstraint(Sketcher.Constraint("Equal", 4, 12))
sketch11.addConstraint(Sketcher.Constraint("DistanceX", 1, 1, 1, 2, Q("0.2 in")))
sketch11.addConstraint(Sketcher.Constraint("DistanceX", 3, 1, 3, 2, Q("0.1 in")))
sketch11.addConstraint(Sketcher.Constraint("DistanceY", 5, 1, 5, 2, Q("0.04 in")))
sketch11.addConstraint(Sketcher.Constraint("DistanceX", 1, 2, 4, 2, Q("0.3 in")))
sketch11.addConstraint(Sketcher.Constraint("DistanceY", 0, 2, 0, 1, Q("0.121 in")))
sketch11.addConstraint(Sketcher.Constraint("DistanceX", 0, 2, -1, 1, Q("0.07 in")))
sketch11.addConstraint(Sketcher.Constraint("DistanceX", -1, 1, 2, 2, Q("0.17 in")))
sketch11.addConstraint(Sketcher.Constraint("DistanceY", 5, 2, 10, 2, Q("0.25 in")))
sketch11.addConstraint(Sketcher.Constraint("DistanceY", 16, 2, 24, 2, Q("0.33 in")))
sketch11.addConstraint(Sketcher.Constraint("DistanceY", 2, 2, -1, 1, Q("2.034 in")))
sketch11.addConstraint(Sketcher.Constraint("DistanceY", 12, 2, -1, 1, Q("1.509 in")))
sketch11.addConstraint(Sketcher.Constraint("DistanceY", -1, 1, 18, 2, Q("1.609 in")))
sketch11.addConstraint(Sketcher.Constraint("DistanceX", 7, 2, 7, 1, Q("5.096835 mm")))
pad4 = body.newObject("PartDesign::Pad", "Pad003")
pad4.Profile = sketch11
pad4.Length = Q("0.1 in")
pad4.Reversed = True

# Sketch on YZ plane
sketch12 = body.newObject("Sketcher::SketchObject", "Sketch011")
sketch12.AttachmentSupport = (doc.getObject("YZ_Plane"), [""])
sketch12.MapMode = "FlatFace"
sketch12.AttachmentOffset = App.Placement(App.Vector(0, 0, -1.6485 * 25.4), App.Rotation())
sketch12.addGeometry(Part.LineSegment(App.Vector(-1.8, -46.1, 0), App.Vector(-1.8, -49.2, 0)), False)
sketch12.addGeometry(Part.LineSegment(App.Vector(-1.8, -49.2, 0), App.Vector(3.3, -49.2, 0)), False)
sketch12.addGeometry(Part.LineSegment(App.Vector(3.3, -49.2, 0), App.Vector(4.3, -51.7, 0)), False)
sketch12.addGeometry(Part.LineSegment(App.Vector(4.3, -51.7, 0), App.Vector(6.9, -51.7, 0)), False)
sketch12.addGeometry(Part.LineSegment(App.Vector(6.9, -51.7, 0), App.Vector(10.9, -49.2, 0)), False)
sketch12.addGeometry(Part.LineSegment(App.Vector(10.9, -49.2, 0), App.Vector(10.9, -48.2, 0)), False)
sketch12.addGeometry(Part.LineSegment(App.Vector(10.9, -48.2, 0), App.Vector(3.3, -46.1, 0)), False)
sketch12.addGeometry(Part.LineSegment(App.Vector(3.3, -46.1, 0), App.Vector(-1.8, -46.1, 0)), False)
sketch12.addGeometry(Part.LineSegment(App.Vector(-1.8, -40.8, 0), App.Vector(-1.8, -43.9, 0)), False)
sketch12.addGeometry(Part.LineSegment(App.Vector(-1.8, -43.9, 0), App.Vector(3.3, -43.9, 0)), False)
sketch12.addGeometry(Part.LineSegment(App.Vector(3.3, -43.9, 0), App.Vector(10.9, -41.8, 0)), False)
sketch12.addGeometry(Part.LineSegment(App.Vector(10.9, -41.8, 0), App.Vector(10.9, -40.8, 0)), False)
sketch12.addGeometry(Part.LineSegment(App.Vector(10.9, -40.8, 0), App.Vector(6.9, -38.3, 0)), False)
sketch12.addGeometry(Part.LineSegment(App.Vector(6.9, -38.3, 0), App.Vector(4.3, -38.3, 0)), False)
sketch12.addGeometry(Part.LineSegment(App.Vector(4.3, -38.3, 0), App.Vector(3.3, -40.8, 0)), False)
sketch12.addGeometry(Part.LineSegment(App.Vector(3.3, -40.8, 0), App.Vector(-1.8, -40.8, 0)), False)
sketch12.addGeometry(Part.LineSegment(App.Vector(-1.8, 46.4, 0), App.Vector(-1.8, 43.3, 0)), False)
sketch12.addGeometry(Part.LineSegment(App.Vector(-1.8, 43.3, 0), App.Vector(3.3, 43.3, 0)), False)
sketch12.addGeometry(Part.LineSegment(App.Vector(3.3, 43.3, 0), App.Vector(4.3, 40.9, 0)), False)
sketch12.addGeometry(Part.LineSegment(App.Vector(4.3, 40.9, 0), App.Vector(6.9, 40.9, 0)), False)
sketch12.addGeometry(Part.LineSegment(App.Vector(6.9, 40.9, 0), App.Vector(10.9, 43.3, 0)), False)
sketch12.addGeometry(Part.LineSegment(App.Vector(10.9, 43.3, 0), App.Vector(10.9, 44.4, 0)), False)
sketch12.addGeometry(Part.LineSegment(App.Vector(10.9, 44.4, 0), App.Vector(3.3, 46.4, 0)), False)
sketch12.addGeometry(Part.LineSegment(App.Vector(3.3, 46.4, 0), App.Vector(-1.8, 46.4, 0)), False)
sketch12.addGeometry(Part.LineSegment(App.Vector(3.3, 51.7, 0), App.Vector(-1.8, 51.7, 0)), False)
sketch12.addGeometry(Part.LineSegment(App.Vector(-1.8, 51.7, 0), App.Vector(-1.8, 48.7, 0)), False)
sketch12.addGeometry(Part.LineSegment(App.Vector(-1.8, 48.7, 0), App.Vector(3.3, 48.7, 0)), False)
sketch12.addGeometry(Part.LineSegment(App.Vector(3.3, 48.7, 0), App.Vector(10.9, 50.7, 0)), False)
sketch12.addGeometry(Part.LineSegment(App.Vector(10.9, 50.7, 0), App.Vector(10.9, 51.7, 0)), False)
sketch12.addGeometry(Part.LineSegment(App.Vector(10.9, 51.7, 0), App.Vector(6.9, 54.2, 0)), False)
sketch12.addGeometry(Part.LineSegment(App.Vector(6.9, 54.2, 0), App.Vector(4.3, 54.2, 0)), False)
sketch12.addGeometry(Part.LineSegment(App.Vector(4.3, 54.2, 0), App.Vector(3.3, 51.7, 0)), False)
sketch12.addConstraint(Sketcher.Constraint("Coincident", 0, 2, 1, 1))
sketch12.addConstraint(Sketcher.Constraint("Coincident", 1, 2, 2, 1))
sketch12.addConstraint(Sketcher.Constraint("Coincident", 2, 2, 3, 1))
sketch12.addConstraint(Sketcher.Constraint("Coincident", 3, 2, 4, 1))
sketch12.addConstraint(Sketcher.Constraint("Coincident", 4, 2, 5, 1))
sketch12.addConstraint(Sketcher.Constraint("Coincident", 5, 2, 6, 1))
sketch12.addConstraint(Sketcher.Constraint("Coincident", 6, 2, 7, 1))
sketch12.addConstraint(Sketcher.Constraint("Coincident", 7, 2, 0, 1))
sketch12.addConstraint(Sketcher.Constraint("Coincident", 8, 2, 9, 1))
sketch12.addConstraint(Sketcher.Constraint("Coincident", 9, 2, 10, 1))
sketch12.addConstraint(Sketcher.Constraint("Coincident", 10, 2, 11, 1))
sketch12.addConstraint(Sketcher.Constraint("Coincident", 11, 2, 12, 1))
sketch12.addConstraint(Sketcher.Constraint("Coincident", 12, 2, 13, 1))
sketch12.addConstraint(Sketcher.Constraint("Coincident", 13, 2, 14, 1))
sketch12.addConstraint(Sketcher.Constraint("Coincident", 14, 2, 15, 1))
sketch12.addConstraint(Sketcher.Constraint("Coincident", 15, 2, 8, 1))
sketch12.addConstraint(Sketcher.Constraint("Coincident", 16, 2, 17, 1))
sketch12.addConstraint(Sketcher.Constraint("Coincident", 17, 2, 18, 1))
sketch12.addConstraint(Sketcher.Constraint("Coincident", 18, 2, 19, 1))
sketch12.addConstraint(Sketcher.Constraint("Coincident", 19, 2, 20, 1))
sketch12.addConstraint(Sketcher.Constraint("Coincident", 20, 2, 21, 1))
sketch12.addConstraint(Sketcher.Constraint("Coincident", 21, 2, 22, 1))
sketch12.addConstraint(Sketcher.Constraint("Coincident", 22, 2, 23, 1))
sketch12.addConstraint(Sketcher.Constraint("Coincident", 23, 2, 16, 1))
sketch12.addConstraint(Sketcher.Constraint("Coincident", 24, 2, 25, 1))
sketch12.addConstraint(Sketcher.Constraint("Coincident", 25, 2, 26, 1))
sketch12.addConstraint(Sketcher.Constraint("Coincident", 26, 2, 27, 1))
sketch12.addConstraint(Sketcher.Constraint("Coincident", 27, 2, 28, 1))
sketch12.addConstraint(Sketcher.Constraint("Coincident", 28, 2, 29, 1))
sketch12.addConstraint(Sketcher.Constraint("Coincident", 29, 2, 30, 1))
sketch12.addConstraint(Sketcher.Constraint("Coincident", 30, 2, 31, 1))
sketch12.addConstraint(Sketcher.Constraint("Coincident", 31, 2, 24, 1))
sketch12.addConstraint(Sketcher.Constraint("Vertical", 0))
sketch12.addConstraint(Sketcher.Constraint("Horizontal", 1))
sketch12.addConstraint(Sketcher.Constraint("Horizontal", 3))
sketch12.addConstraint(Sketcher.Constraint("Vertical", 5))
sketch12.addConstraint(Sketcher.Constraint("Horizontal", 7))
sketch12.addConstraint(Sketcher.Constraint("Vertical", 8))
sketch12.addConstraint(Sketcher.Constraint("Horizontal", 9))
sketch12.addConstraint(Sketcher.Constraint("Vertical", 11))
sketch12.addConstraint(Sketcher.Constraint("Horizontal", 13))
sketch12.addConstraint(Sketcher.Constraint("Horizontal", 15))
sketch12.addConstraint(Sketcher.Constraint("Vertical", 16))
sketch12.addConstraint(Sketcher.Constraint("Horizontal", 17))
sketch12.addConstraint(Sketcher.Constraint("Horizontal", 19))
sketch12.addConstraint(Sketcher.Constraint("Vertical", 21))
sketch12.addConstraint(Sketcher.Constraint("Horizontal", 23))
sketch12.addConstraint(Sketcher.Constraint("Horizontal", 24))
sketch12.addConstraint(Sketcher.Constraint("Vertical", 25))
sketch12.addConstraint(Sketcher.Constraint("Horizontal", 26))
sketch12.addConstraint(Sketcher.Constraint("Vertical", 28))
sketch12.addConstraint(Sketcher.Constraint("Horizontal", 30))
sketch12.addConstraint(Sketcher.Constraint("Parallel", 2, 18))
sketch12.addConstraint(Sketcher.Constraint("Parallel", 4, 20))
sketch12.addConstraint(Sketcher.Constraint("Parallel", 6, 22))
sketch12.addConstraint(Sketcher.Constraint("Parallel", 10, 27))
sketch12.addConstraint(Sketcher.Constraint("Parallel", 12, 29))
sketch12.addConstraint(Sketcher.Constraint("Parallel", 14, 31))
sketch12.addConstraint(Sketcher.Constraint("Horizontal", 1, 2, 4, 2))
sketch12.addConstraint(Sketcher.Constraint("Horizontal", 11, 2, 14, 2))
sketch12.addConstraint(Sketcher.Constraint("Horizontal", 17, 2, 20, 2))
sketch12.addConstraint(Sketcher.Constraint("Horizontal", 24, 2, 28, 2))
sketch12.addConstraint(Sketcher.Constraint("Vertical", 7, 2, 8, 2))
sketch12.addConstraint(Sketcher.Constraint("Vertical", 6, 2, 9, 2))
sketch12.addConstraint(Sketcher.Constraint("Vertical", 5, 2, 10, 2))
sketch12.addConstraint(Sketcher.Constraint("Vertical", 3, 2, 12, 2))
sketch12.addConstraint(Sketcher.Constraint("Vertical", 2, 2, 13, 2))
sketch12.addConstraint(Sketcher.Constraint("Vertical", 1, 2, 14, 2))
sketch12.addConstraint(Sketcher.Constraint("Vertical", 15, 2, 16, 2))
sketch12.addConstraint(Sketcher.Constraint("Vertical", 14, 2, 17, 2))
sketch12.addConstraint(Sketcher.Constraint("Vertical", 13, 2, 18, 2))
sketch12.addConstraint(Sketcher.Constraint("Vertical", 12, 2, 19, 2))
sketch12.addConstraint(Sketcher.Constraint("Vertical", 9, 2, 22, 2))
sketch12.addConstraint(Sketcher.Constraint("Vertical", 23, 2, 24, 2))
sketch12.addConstraint(Sketcher.Constraint("Vertical", 22, 2, 26, 2))
sketch12.addConstraint(Sketcher.Constraint("Vertical", 21, 2, 27, 2))
sketch12.addConstraint(Sketcher.Constraint("Vertical", 19, 2, 29, 2))
sketch12.addConstraint(Sketcher.Constraint("Vertical", 18, 2, 30, 2))
sketch12.addConstraint(Sketcher.Constraint("Equal", 0, 8))
sketch12.addConstraint(Sketcher.Constraint("Equal", 5, 11))
sketch12.addConstraint(Sketcher.Constraint("Equal", 8, 16))
sketch12.addConstraint(Sketcher.Constraint("Equal", 16, 25))
sketch12.addConstraint(Sketcher.Constraint("Equal", 4, 12))
sketch12.addConstraint(Sketcher.Constraint("DistanceX", 1, 1, 1, 2, Q("0.2 in")))
sketch12.addConstraint(Sketcher.Constraint("DistanceX", 3, 1, 3, 2, Q("0.1 in")))
sketch12.addConstraint(Sketcher.Constraint("DistanceY", 5, 1, 5, 2, Q("0.04 in")))
sketch12.addConstraint(Sketcher.Constraint("DistanceX", 1, 2, 4, 2, Q("0.3 in")))
sketch12.addConstraint(Sketcher.Constraint("DistanceY", 0, 2, 0, 1, Q("0.121 in")))
sketch12.addConstraint(Sketcher.Constraint("DistanceX", 0, 2, -1, 1, Q("0.07 in")))
sketch12.addConstraint(Sketcher.Constraint("DistanceX", -1, 1, 2, 2, Q("0.17 in")))
sketch12.addConstraint(Sketcher.Constraint("DistanceY", 5, 2, 10, 2, Q("0.25 in")))
sketch12.addConstraint(Sketcher.Constraint("DistanceY", 16, 2, 24, 2, Q("0.33 in")))
sketch12.addConstraint(Sketcher.Constraint("DistanceY", 2, 2, -1, 1, Q("2.034 in")))
sketch12.addConstraint(Sketcher.Constraint("DistanceY", 12, 2, -1, 1, Q("1.509 in")))
sketch12.addConstraint(Sketcher.Constraint("DistanceY", -1, 1, 18, 2, Q("1.609 in")))
sketch12.addConstraint(Sketcher.Constraint("DistanceX", 7, 2, 7, 1, Q("5.096835 mm")))
pad5 = body.newObject("PartDesign::Pad", "Pad004")
pad5.Profile = sketch12
pad5.Length = Q("0.1 in")
pad5.Reversed = True

doc.recompute()
